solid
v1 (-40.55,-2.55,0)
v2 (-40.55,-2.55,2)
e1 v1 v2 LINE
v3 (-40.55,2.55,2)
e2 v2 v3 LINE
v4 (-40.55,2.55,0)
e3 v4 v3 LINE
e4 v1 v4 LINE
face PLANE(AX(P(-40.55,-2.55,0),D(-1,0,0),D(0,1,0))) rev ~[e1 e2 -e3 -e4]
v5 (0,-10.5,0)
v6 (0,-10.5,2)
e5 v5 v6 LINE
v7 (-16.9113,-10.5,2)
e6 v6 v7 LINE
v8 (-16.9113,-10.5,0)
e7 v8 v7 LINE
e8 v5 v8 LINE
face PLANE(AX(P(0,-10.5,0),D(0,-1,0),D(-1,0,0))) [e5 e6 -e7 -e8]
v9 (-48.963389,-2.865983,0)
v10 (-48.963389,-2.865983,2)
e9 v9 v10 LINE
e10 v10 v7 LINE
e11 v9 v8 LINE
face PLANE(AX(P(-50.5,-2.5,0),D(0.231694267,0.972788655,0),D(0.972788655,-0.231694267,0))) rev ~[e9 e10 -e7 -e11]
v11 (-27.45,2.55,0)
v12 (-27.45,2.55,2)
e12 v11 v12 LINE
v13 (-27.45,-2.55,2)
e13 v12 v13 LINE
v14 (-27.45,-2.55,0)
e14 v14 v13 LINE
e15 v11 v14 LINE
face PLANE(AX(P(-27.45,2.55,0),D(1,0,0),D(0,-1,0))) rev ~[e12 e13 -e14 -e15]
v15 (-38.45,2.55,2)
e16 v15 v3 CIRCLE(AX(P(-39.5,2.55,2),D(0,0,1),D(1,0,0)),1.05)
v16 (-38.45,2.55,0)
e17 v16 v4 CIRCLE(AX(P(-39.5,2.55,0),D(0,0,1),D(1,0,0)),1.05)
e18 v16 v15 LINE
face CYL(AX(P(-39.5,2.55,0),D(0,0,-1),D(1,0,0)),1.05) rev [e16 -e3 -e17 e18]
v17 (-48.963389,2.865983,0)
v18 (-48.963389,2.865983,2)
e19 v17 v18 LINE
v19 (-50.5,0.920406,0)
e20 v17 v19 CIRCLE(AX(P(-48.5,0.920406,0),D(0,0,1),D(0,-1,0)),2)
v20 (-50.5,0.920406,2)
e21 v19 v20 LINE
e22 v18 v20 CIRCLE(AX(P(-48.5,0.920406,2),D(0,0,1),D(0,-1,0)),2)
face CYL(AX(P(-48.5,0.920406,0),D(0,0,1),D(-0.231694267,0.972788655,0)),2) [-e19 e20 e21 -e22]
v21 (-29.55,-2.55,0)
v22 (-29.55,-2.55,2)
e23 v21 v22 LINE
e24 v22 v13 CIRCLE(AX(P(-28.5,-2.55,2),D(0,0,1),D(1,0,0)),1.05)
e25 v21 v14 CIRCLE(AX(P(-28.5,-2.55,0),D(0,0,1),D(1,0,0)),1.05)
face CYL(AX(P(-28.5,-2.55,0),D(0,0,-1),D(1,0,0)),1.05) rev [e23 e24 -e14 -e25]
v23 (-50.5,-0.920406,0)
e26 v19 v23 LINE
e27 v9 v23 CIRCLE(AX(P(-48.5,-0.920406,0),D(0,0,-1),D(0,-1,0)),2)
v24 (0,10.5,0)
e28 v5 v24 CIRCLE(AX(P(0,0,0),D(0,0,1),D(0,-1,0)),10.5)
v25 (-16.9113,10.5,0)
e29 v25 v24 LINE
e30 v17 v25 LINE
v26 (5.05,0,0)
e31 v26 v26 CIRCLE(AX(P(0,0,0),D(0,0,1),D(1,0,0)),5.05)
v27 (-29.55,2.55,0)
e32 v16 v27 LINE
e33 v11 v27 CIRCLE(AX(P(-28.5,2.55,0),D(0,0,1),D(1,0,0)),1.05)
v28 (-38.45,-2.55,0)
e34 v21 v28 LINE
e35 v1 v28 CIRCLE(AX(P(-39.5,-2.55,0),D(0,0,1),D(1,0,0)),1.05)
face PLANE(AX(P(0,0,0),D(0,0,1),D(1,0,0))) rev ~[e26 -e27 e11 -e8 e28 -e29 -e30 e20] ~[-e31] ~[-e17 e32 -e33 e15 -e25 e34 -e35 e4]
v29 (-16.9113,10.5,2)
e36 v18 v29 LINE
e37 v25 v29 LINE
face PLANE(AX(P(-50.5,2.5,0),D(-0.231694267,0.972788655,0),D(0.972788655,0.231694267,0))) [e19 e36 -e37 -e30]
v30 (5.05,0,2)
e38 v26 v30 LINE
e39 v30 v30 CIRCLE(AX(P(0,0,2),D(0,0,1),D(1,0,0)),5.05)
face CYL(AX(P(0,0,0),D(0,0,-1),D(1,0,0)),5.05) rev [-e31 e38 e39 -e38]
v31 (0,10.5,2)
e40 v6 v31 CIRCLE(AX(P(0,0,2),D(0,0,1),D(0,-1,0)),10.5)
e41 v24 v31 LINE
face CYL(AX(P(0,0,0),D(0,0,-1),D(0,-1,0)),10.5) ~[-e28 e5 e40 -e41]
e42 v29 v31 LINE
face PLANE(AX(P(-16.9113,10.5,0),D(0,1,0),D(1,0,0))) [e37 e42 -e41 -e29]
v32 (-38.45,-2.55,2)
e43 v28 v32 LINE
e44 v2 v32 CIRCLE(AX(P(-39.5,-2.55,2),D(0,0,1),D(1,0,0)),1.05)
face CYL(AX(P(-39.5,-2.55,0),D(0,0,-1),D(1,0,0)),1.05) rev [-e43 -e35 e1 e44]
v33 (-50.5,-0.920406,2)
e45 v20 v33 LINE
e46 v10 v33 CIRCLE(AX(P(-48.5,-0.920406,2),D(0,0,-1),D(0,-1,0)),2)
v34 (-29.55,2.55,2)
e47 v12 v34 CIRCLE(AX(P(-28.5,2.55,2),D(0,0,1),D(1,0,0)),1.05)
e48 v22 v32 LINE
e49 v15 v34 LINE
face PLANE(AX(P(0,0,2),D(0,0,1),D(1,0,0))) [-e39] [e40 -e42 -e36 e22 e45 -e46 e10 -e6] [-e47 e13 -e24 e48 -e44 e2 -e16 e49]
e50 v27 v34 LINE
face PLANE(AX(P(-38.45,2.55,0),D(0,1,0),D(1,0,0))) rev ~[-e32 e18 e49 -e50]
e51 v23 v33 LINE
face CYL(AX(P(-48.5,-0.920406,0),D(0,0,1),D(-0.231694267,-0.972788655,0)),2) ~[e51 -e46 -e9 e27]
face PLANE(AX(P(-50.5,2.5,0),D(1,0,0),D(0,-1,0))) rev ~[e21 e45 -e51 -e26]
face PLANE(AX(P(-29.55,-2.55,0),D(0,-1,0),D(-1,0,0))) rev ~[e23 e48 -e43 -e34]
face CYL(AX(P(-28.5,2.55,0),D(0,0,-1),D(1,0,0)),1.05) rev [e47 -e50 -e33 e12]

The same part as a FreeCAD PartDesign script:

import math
import FreeCAD as App
import Part
import Sketcher
from FreeCAD import Vector


def edges_at(feature, points):
    """Names of the edges that pass closest to the given points."""
    edges = feature.Shape.Edges
    near = lambda p: min(range(len(edges)), key=lambda i: edges[i].distToShape(Part.Vertex(*p))[0])
    return sorted({f"Edge{near(p) + 1}" for p in points})

doc = App.newDocument("Part")
body = doc.addObject("PartDesign::Body", "Body")

sketch1 = doc.addObject("Sketcher::SketchObject", "Sketch")
body.addObject(sketch1)
sketch1.AttachmentSupport = (doc.XY_Plane, [""])
sketch1.MapMode = "FlatFace"
sketch1.addGeometry([
    Part.LineSegment(Vector(-16.9, 10.5, 0), Vector(-50.5, 2.5, 0)),
    Part.LineSegment(Vector(-50.5, 2.5, 0), Vector(-50.5, -2.5, 0)),
    Part.LineSegment(Vector(-50.5, -2.5, 0), Vector(-16.9, -10.5, 0)),
    Part.LineSegment(Vector(-16.9, -10.5, 0), Vector(0, -10.5, 0)),
    Part.ArcOfCircle(Part.Circle(Vector(0, 0, 0), Vector(0, 0, 1), 10.5), math.radians(-90), math.radians(90)),
    Part.LineSegment(Vector(0, 10.5, 0), Vector(-16.9, 10.5, 0)),
    Part.Circle(Vector(0, -8.5, 0), Vector(0, 0, 1), 1.4),
    Part.Circle(Vector(-46.5, 0, 0), Vector(0, 0, 1), 1.6),
    Part.LineSegment(Vector(-29.6, -2.5, 0), Vector(-38.5, -2.5, 0)),
    Part.ArcOfCircle(Part.Circle(Vector(-39.5, -2.5, 0), Vector(0, 0, 1), 1.1), math.radians(180), math.radians(360)),
    Part.LineSegment(Vector(-40.5, -2.5, 0), Vector(-40.5, 2.5, 0)),
    Part.ArcOfCircle(Part.Circle(Vector(-39.5, 2.5, 0), Vector(0, 0, 1), 1.1), math.radians(0), math.radians(180)),
    Part.LineSegment(Vector(-38.5, 2.5, 0), Vector(-29.6, 2.5, 0)),
    Part.ArcOfCircle(Part.Circle(Vector(-28.5, 2.5, 0), Vector(0, 0, 1), 1.1), math.radians(0), math.radians(180)),
    Part.LineSegment(Vector(-27.4, 2.5, 0), Vector(-27.4, -2.5, 0)),
    Part.ArcOfCircle(Part.Circle(Vector(-28.5, -2.5, 0), Vector(0, 0, 1), 1.1), math.radians(180), math.radians(360)),
    Part.Circle(Vector(-21.5, 0, 0), Vector(0, 0, 1), 1.6),
    Part.Circle(Vector(-8.5, 0, 0), Vector(0, 0, 1), 1.4),
    Part.Circle(Vector(0, 0, 0), Vector(0, 0, 1), 5),
    Part.Circle(Vector(8.5, 0, 0), Vector(0, 0, 1), 1.4),
    Part.Circle(Vector(0, 8.5, 0), Vector(0, 0, 1), 1.4),
], False)
sketch1.addConstraint([
    Sketcher.Constraint("Coincident", 0, 2, 1, 1),
    Sketcher.Constraint("Coincident", 1, 2, 2, 1),
    Sketcher.Constraint("Coincident", 2, 2, 3, 1),
    Sketcher.Constraint("Tangent", 3, 2, 4, 1),
    Sketcher.Constraint("Tangent", 4, 2, 5, 1),
    Sketcher.Constraint("Coincident", 5, 2, 0, 1),
    Sketcher.Constraint("Coincident", 8, 2, 9, 2),
    Sketcher.Constraint("Tangent", 9, 1, 10, 1),
    Sketcher.Constraint("Tangent", 10, 2, 11, 2),
    Sketcher.Constraint("Coincident", 11, 1, 12, 1),
    Sketcher.Constraint("Coincident", 12, 2, 13, 2),
    Sketcher.Constraint("Tangent", 13, 1, 14, 1),
    Sketcher.Constraint("Tangent", 14, 2, 15, 2),
    Sketcher.Constraint("Coincident", 15, 1, 8, 1),
    Sketcher.Constraint("Vertical", 1),
    Sketcher.Constraint("Horizontal", 3),
    Sketcher.Constraint("Horizontal", 5),
    Sketcher.Constraint("Horizontal", 8),
    Sketcher.Constraint("Vertical", 10),
    Sketcher.Constraint("Horizontal", 12),
    Sketcher.Constraint("Vertical", 14),
    Sketcher.Constraint("Coincident", 4, 3, -1, 1),
    Sketcher.Constraint("Coincident", 18, 3, -1, 1),
    Sketcher.Constraint("Equal", 9, 11),
    Sketcher.Constraint("Equal", 11, 13),
    Sketcher.Constraint("Equal", 13, 15),
    Sketcher.Constraint("Equal", 7, 16),
    Sketcher.Constraint("Equal", 6, 17),
    Sketcher.Constraint("Equal", 17, 19),
    Sketcher.Constraint("Equal", 19, 20),
    Sketcher.Constraint("Symmetric", 17, 3, 19, 3, -1, 1),
    Sketcher.Constraint("Symmetric", 6, 3, 20, 3, -1, 1),
    Sketcher.Constraint("PointOnObject", 6, 3, -2),
    Sketcher.Constraint("PointOnObject", 7, 3, -1),
    Sketcher.Constraint("PointOnObject", 16, 3, -1),
    Sketcher.Constraint("PointOnObject", 17, 3, -1),
    Sketcher.Constraint("Horizontal", 11, 3, 13, 3),
    Sketcher.Constraint("Horizontal", 9, 3, 15, 3),
    Sketcher.Constraint("Horizontal", 15, 3, 8, 2),
    Sketcher.Constraint("Horizontal", 10, 2, 11, 1),
    Sketcher.Constraint("Vertical", 2, 2, 5, 2),
    Sketcher.Constraint("Equal", 0, 2),
    Sketcher.Constraint("Diameter", 6, 2.7),
    Sketcher.Constraint("Diameter", 7, 3.1),
    Sketcher.Constraint("Diameter", 18, 10.1),
    Sketcher.Constraint("Radius", 4, 10.5),
    Sketcher.Constraint("DistanceY", 1, 2, 1, 1, 5.0),
    Sketcher.Constraint("Radius", 9, 1.05),
    Sketcher.Constraint("DistanceX", 0, 2, 7, 3, 4.0),
    Sketcher.Constraint("DistanceY", 6, 3, -1, 1, 8.5),
    Sketcher.Constraint("DistanceX", 17, 3, -1, 1, 8.5),
    Sketcher.Constraint("DistanceY", 0, 2, 11, 3, 0.05),
    Sketcher.Constraint("DistanceY", 9, 3, 1, 2, 0.05),
    Sketcher.Constraint("DistanceX", 8, 2, 8, 1, 8.9),
    Sketcher.Constraint("DistanceX", 7, 3, 9, 3, 7.0),
    Sketcher.Constraint("DistanceX", 13, 3, 16, 3, 7.0),
    Sketcher.Constraint("DistanceX", 16, 3, 17, 3, 13.0),
    Sketcher.Constraint("DistanceX", 3, 1, 3, 2, 16.9113),
])
pad1 = doc.addObject("PartDesign::Pad", "Pad")
body.addObject(pad1)
pad1.Profile = sketch1
pad1.Length = 2
doc.recompute()

fillet = doc.addObject("PartDesign::Fillet", "Fillet")
body.addObject(fillet)
fillet.Base = (pad1, edges_at(pad1, [(-50.5, 2.5, 1), (-50.5, -2.5, 1)]))
fillet.Radius = 2

sketch2 = doc.addObject("Sketcher::SketchObject", "Sketch001")
body.addObject(sketch2)
sketch2.AttachmentSupport = (doc.XY_Plane, [""])
sketch2.MapMode = "FlatFace"
sketch2.addGeometry([
    Part.Circle(Vector(0, -8.5, 0), Vector(0, 0, 1), 1.4),
    Part.Circle(Vector(-8.5, 0, 0), Vector(0, 0, 1), 1.4),
    Part.Circle(Vector(0, 8.5, 0), Vector(0, 0, 1), 1.4),
    Part.Circle(Vector(8.5, 0, 0), Vector(0, 0, 1), 1.4),
    Part.Circle(Vector(-21.5, 0, 0), Vector(0, 0, 1), 1.6),
    Part.Circle(Vector(-46.5, 0, 0), Vector(0, 0, 1), 1.6),
], False)
sketch2.addConstraint([
    Sketcher.Constraint("Equal", 0, 1),
    Sketcher.Constraint("Equal", 1, 2),
    Sketcher.Constraint("Equal", 2, 3),
    Sketcher.Constraint("Equal", 4, 5),
    Sketcher.Constraint("Symmetric", 0, 3, 2, 3, -1, 1),
    Sketcher.Constraint("Symmetric", 1, 3, 3, 3, -1, 1),
    Sketcher.Constraint("PointOnObject", 0, 3, -2),
    Sketcher.Constraint("PointOnObject", 1, 3, -1),
    Sketcher.Constraint("PointOnObject", 4, 3, -1),
    Sketcher.Constraint("PointOnObject", 5, 3, -1),
    Sketcher.Constraint("Diameter", 0, 2.7),
    Sketcher.Constraint("Diameter", 4, 3.1),
    Sketcher.Constraint("DistanceY", 0, 3, 2, 3, 17.0),
    Sketcher.Constraint("DistanceX", 1, 3, 3, 3, 17.0),
    Sketcher.Constraint("DistanceX", 4, 3, 1, 3, 13.0),
    Sketcher.Constraint("DistanceX", 5, 3, 4, 3, 25.0),
])
pad2 = doc.addObject("PartDesign::Pad", "Pad001")
body.addObject(pad2)
pad2.Profile = sketch2
pad2.Length = 2

doc.recompute()
